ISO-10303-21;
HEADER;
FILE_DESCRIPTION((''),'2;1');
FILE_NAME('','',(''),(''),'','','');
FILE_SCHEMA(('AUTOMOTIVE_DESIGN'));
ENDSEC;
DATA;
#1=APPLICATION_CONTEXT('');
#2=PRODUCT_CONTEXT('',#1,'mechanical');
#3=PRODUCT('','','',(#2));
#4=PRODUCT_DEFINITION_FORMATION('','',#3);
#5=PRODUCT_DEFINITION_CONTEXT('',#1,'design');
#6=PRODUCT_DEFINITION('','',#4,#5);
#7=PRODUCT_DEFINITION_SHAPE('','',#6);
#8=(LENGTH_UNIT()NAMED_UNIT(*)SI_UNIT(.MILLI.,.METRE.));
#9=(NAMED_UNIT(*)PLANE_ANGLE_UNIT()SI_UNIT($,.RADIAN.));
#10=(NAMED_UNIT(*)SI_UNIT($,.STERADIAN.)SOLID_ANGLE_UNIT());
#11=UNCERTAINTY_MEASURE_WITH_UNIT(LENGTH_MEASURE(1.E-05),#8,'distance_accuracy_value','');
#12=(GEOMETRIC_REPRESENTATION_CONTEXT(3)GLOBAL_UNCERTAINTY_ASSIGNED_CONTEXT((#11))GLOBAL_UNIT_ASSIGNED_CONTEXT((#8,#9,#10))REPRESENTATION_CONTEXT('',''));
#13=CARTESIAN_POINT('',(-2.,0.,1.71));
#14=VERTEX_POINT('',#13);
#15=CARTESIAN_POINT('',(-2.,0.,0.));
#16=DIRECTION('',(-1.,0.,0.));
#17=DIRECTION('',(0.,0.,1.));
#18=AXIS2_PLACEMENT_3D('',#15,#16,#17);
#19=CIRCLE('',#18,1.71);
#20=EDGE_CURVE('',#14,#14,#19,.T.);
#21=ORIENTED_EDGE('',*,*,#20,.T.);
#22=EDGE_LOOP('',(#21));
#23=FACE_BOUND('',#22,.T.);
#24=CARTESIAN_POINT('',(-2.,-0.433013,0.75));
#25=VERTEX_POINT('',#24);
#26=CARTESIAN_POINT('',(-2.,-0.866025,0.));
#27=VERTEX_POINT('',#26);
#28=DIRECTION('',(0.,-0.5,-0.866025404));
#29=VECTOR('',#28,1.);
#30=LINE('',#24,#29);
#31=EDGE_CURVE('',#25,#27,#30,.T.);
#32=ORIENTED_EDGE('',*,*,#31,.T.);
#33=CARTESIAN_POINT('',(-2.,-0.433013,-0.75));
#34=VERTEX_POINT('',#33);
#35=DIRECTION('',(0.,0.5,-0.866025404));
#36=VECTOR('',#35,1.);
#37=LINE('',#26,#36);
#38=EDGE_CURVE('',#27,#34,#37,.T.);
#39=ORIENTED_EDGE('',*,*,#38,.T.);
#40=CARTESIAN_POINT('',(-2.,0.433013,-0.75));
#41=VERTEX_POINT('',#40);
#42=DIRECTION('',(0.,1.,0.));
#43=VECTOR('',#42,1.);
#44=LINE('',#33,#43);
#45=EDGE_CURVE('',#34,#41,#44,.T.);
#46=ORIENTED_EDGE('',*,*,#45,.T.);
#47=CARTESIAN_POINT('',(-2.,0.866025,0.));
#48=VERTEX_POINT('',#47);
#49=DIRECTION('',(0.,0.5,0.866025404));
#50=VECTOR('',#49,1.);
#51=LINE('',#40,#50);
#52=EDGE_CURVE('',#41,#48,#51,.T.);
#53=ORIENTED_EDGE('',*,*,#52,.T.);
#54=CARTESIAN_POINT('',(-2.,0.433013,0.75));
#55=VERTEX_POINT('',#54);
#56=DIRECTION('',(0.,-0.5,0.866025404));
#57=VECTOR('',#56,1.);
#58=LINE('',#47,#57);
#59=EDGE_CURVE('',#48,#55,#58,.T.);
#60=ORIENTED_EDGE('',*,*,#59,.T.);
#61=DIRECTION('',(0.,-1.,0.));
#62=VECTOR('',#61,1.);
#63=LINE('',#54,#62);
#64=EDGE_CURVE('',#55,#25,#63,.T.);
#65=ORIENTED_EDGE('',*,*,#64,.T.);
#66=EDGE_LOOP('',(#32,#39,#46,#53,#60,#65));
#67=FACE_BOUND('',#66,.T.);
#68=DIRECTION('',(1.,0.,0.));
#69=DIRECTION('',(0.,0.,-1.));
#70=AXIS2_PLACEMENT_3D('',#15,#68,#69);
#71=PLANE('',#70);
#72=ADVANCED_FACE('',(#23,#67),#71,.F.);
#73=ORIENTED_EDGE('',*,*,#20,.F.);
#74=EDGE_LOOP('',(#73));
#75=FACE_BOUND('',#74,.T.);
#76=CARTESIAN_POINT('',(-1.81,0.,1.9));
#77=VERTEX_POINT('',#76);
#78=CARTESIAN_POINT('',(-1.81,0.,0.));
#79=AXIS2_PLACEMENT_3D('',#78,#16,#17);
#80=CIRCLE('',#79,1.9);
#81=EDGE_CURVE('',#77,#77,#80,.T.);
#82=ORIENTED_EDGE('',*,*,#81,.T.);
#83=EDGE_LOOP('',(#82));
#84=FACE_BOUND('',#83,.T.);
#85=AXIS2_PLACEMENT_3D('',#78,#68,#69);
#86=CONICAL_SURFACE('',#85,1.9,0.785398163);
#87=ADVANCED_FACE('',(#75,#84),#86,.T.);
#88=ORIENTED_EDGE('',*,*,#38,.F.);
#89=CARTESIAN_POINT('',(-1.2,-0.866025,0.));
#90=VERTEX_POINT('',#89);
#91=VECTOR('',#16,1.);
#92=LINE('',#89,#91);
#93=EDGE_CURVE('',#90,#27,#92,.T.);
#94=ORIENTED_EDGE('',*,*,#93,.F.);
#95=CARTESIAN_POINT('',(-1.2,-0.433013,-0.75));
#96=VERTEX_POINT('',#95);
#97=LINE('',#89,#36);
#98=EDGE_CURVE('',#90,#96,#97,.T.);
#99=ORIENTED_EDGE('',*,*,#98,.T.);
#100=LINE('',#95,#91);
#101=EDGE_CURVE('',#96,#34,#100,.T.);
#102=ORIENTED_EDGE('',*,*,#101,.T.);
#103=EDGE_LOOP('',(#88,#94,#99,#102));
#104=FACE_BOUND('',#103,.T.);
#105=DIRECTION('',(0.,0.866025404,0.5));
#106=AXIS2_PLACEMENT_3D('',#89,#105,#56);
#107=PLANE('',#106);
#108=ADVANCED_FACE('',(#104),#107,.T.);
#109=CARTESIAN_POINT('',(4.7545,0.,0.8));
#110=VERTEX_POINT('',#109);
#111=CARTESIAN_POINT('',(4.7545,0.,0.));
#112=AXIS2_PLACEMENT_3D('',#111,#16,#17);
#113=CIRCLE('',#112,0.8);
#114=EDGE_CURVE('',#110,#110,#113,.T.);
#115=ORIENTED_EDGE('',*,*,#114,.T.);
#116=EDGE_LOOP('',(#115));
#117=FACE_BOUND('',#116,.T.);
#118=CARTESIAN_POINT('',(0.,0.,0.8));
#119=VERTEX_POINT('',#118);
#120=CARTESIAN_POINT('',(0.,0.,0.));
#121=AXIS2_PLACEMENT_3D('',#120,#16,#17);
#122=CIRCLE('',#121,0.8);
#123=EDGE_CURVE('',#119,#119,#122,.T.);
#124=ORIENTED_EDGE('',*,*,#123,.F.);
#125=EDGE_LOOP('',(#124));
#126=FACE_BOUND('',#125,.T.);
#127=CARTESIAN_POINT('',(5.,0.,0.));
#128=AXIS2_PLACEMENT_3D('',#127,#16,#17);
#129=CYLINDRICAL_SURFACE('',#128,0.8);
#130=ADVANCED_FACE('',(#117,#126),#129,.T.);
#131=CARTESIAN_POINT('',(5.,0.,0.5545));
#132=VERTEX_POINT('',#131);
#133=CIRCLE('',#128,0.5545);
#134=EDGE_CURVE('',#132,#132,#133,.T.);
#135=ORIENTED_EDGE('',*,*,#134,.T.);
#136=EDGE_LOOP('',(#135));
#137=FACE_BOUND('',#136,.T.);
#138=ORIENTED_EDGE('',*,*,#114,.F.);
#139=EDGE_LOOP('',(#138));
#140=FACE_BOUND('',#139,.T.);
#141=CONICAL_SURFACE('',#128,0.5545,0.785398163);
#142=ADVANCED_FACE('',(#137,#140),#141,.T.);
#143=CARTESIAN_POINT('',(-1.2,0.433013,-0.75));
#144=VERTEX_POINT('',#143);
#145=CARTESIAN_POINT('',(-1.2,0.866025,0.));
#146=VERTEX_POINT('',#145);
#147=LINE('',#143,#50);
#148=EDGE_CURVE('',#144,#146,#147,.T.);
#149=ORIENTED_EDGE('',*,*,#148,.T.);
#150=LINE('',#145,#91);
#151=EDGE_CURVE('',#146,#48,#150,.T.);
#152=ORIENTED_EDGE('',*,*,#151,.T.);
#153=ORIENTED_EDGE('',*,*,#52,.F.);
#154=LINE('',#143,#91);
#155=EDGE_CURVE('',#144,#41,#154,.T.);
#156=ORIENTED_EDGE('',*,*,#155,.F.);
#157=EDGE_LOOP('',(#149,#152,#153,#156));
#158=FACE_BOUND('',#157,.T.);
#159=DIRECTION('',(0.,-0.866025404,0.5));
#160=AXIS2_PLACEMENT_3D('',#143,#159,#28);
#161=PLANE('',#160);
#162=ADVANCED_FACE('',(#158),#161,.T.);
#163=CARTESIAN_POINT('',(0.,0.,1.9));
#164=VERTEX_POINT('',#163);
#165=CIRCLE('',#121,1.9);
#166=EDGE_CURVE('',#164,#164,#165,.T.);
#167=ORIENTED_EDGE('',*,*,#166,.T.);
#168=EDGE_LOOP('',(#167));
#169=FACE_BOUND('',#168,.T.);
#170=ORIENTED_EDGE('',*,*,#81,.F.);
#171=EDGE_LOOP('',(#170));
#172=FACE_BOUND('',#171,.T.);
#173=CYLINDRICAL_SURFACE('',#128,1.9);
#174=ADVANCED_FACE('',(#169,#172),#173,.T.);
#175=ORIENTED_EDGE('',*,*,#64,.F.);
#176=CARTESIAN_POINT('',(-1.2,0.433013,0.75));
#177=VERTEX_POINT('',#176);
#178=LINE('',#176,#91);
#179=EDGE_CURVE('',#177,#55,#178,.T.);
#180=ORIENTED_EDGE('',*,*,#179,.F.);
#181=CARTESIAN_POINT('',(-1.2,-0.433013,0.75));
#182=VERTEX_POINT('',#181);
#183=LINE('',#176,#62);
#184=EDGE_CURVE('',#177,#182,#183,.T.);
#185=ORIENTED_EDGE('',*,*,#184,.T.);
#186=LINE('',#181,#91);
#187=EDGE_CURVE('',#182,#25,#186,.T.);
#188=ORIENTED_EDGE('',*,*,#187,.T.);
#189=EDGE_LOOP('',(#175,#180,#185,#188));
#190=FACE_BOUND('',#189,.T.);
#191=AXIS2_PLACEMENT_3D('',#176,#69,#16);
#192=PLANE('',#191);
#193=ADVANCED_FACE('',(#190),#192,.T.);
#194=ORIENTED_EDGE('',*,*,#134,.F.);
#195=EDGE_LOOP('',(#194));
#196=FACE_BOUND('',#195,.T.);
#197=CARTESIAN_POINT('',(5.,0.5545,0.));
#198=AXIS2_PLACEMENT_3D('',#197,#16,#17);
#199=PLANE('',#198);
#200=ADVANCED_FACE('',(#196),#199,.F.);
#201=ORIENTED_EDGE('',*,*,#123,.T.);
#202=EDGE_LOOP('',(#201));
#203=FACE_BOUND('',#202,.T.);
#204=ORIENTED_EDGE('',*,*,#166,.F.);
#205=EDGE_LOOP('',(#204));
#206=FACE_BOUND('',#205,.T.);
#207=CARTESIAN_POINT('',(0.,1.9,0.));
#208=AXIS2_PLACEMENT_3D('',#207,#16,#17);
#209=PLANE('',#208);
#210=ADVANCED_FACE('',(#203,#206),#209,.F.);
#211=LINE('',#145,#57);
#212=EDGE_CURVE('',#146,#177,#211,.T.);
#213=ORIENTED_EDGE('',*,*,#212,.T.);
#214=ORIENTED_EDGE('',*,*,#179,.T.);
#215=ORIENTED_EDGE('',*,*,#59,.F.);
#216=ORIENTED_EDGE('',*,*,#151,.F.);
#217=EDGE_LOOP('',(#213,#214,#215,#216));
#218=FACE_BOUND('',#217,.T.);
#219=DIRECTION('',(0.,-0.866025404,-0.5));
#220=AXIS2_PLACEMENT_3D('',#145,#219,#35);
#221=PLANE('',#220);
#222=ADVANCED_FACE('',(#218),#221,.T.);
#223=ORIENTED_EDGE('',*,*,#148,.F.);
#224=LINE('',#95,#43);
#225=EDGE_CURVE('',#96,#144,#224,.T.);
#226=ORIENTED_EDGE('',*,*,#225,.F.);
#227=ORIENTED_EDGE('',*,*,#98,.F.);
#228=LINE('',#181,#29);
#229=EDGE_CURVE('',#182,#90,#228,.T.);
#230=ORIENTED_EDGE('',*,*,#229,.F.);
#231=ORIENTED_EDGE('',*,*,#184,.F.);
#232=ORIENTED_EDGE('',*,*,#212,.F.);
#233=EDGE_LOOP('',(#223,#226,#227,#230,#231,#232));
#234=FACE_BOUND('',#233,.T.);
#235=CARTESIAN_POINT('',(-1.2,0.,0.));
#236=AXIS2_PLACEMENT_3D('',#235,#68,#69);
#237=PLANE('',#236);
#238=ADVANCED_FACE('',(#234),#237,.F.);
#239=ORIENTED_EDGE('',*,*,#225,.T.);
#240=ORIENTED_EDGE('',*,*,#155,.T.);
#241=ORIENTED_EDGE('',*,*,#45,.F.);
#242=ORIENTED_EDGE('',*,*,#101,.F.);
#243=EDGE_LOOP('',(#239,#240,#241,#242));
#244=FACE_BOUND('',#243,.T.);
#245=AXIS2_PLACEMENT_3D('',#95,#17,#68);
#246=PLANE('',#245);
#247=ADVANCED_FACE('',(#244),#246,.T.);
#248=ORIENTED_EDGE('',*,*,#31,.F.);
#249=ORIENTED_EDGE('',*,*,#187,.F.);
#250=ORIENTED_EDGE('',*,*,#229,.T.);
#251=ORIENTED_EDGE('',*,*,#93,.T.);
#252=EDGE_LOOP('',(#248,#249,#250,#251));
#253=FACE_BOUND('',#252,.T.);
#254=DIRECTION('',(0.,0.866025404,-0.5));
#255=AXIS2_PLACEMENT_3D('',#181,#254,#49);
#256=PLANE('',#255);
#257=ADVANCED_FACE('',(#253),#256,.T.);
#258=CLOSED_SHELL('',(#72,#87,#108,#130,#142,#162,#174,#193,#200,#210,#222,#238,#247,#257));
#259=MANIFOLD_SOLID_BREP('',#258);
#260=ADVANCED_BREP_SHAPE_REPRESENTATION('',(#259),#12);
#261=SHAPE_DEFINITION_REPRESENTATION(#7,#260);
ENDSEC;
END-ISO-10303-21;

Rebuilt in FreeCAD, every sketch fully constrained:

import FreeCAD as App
import Part
import Sketcher
Q = App.Units.Quantity


def add_polygon(sketch, points):
    """Adds a closed chain of lines whose ends are joined by coincident constraints."""
    first, n = sketch.GeometryCount, len(points)
    for a, b in zip(points, points[1:] + points[:1]):
        sketch.addGeometry(Part.LineSegment(App.Vector(*a, 0), App.Vector(*b, 0)), False)
    for i in range(n):
        sketch.addConstraint(Sketcher.Constraint("Coincident", first + i, 2, first + (i + 1) % n, 1))

doc = App.newDocument("Part")
body = doc.addObject("PartDesign::Body", "Body")

sketch1 = body.newObject("Sketcher::SketchObject", "Sketch")
sketch1.AttachmentSupport = (doc.getObject("XY_Plane"), [""])
sketch1.MapMode = "FlatFace"
add_polygon(sketch1, [(-2, 1.71), (-2, 0), (5, 0), (5, 0.55), (4.75, 0.8), (0, 0.8), (0, 1.9), (-1.81, 1.9)])
sketch1.addConstraint([
    Sketcher.Constraint("Vertical", 0),
    Sketcher.Constraint("Horizontal", 1),
    Sketcher.Constraint("Vertical", 2),
    Sketcher.Constraint("Horizontal", 4),
    Sketcher.Constraint("Vertical", 5),
    Sketcher.Constraint("Horizontal", 6),
    Sketcher.Constraint("PointOnObject", 0, 2, -1),
    Sketcher.Constraint("PointOnObject", 4, 2, -2),
    Sketcher.Constraint("Perpendicular", 3, 7),
    Sketcher.Constraint("DistanceX", 1, 1, 1, 2, Q("7 mm")),
    Sketcher.Constraint("Angle", 3, Q("135 deg")),
    Sketcher.Constraint("DistanceY", 5, 1, 5, 2, Q("1.1 mm")),
    Sketcher.Constraint("DistanceX", 0, 2, -1, 1, Q("2 mm")),
    Sketcher.Constraint("DistanceX", 6, 2, 6, 1, Q("1.81 mm")),
    Sketcher.Constraint("DistanceY", 0, 2, 0, 1, Q("1.71 mm")),
    Sketcher.Constraint("DistanceX", 4, 2, 4, 1, Q("4.7545 mm")),
])
revolution = body.newObject("PartDesign::Revolution", "Revolution")
revolution.Profile = sketch1
revolution.ReferenceAxis = (sketch1, ["H_Axis"])
revolution.Angle = 360

sketch2 = body.newObject("Sketcher::SketchObject", "Sketch001")
sketch2.AttachmentSupport = (doc.getObject("YZ_Plane"), [""])
sketch2.MapMode = "FlatFace"
sketch2.AttachmentOffset = App.Placement(App.Vector(0, 0, -2), App.Rotation())
add_polygon(sketch2, [(-0.4, 0.8), (-0.9, 0), (-0.4, -0.8), (0.4, -0.8), (0.9, 0), (0.4, 0.8)])
sketch2.addConstraint([
    Sketcher.Constraint("Horizontal", 2),
    Sketcher.Constraint("Horizontal", 5),
    Sketcher.Constraint("Symmetric", 0, 2, 3, 2, -1, 1),
    Sketcher.Constraint("Symmetric", 1, 2, 4, 2, -1, 1),
    Sketcher.Constraint("PointOnObject", 0, 2, -1),
    Sketcher.Constraint("Parallel", 0, 3),
    Sketcher.Constraint("Vertical", 2, 2, 4, 2),
    Sketcher.Constraint("Angle", 0, Q("-120 deg")),
    Sketcher.Constraint("DistanceY", 2, 2, 4, 2, Q("1.5 mm")),
    Sketcher.Constraint("DistanceX", 2, 1, 2, 2, Q("0.866025 mm")),
])
pocket1 = body.newObject("PartDesign::Pocket", "Pocket")
pocket1.Profile = sketch2
pocket1.Length = 0.8
pocket1.Reversed = True

doc.recompute()
